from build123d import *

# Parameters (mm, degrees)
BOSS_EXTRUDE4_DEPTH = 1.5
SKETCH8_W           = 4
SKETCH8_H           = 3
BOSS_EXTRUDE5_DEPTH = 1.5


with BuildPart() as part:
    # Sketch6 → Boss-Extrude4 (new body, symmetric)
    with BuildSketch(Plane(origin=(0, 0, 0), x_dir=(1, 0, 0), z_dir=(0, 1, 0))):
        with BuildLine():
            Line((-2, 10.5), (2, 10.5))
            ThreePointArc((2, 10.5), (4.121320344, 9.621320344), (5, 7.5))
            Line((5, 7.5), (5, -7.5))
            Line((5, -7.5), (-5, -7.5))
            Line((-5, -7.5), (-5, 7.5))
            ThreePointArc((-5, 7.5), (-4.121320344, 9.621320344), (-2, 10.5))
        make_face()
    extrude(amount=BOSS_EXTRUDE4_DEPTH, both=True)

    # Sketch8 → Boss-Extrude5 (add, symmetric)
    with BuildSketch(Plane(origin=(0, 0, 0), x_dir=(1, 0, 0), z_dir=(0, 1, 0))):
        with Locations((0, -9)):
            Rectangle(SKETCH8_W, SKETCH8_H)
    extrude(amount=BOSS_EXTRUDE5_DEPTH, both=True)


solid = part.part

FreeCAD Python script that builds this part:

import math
import FreeCAD as App
import Part
import Sketcher

V = App.Vector


def add_polygon(sketch, points):
    """Adds a closed chain of lines whose ends are joined by coincident constraints."""
    first, n = sketch.GeometryCount, len(points)
    for a, b in zip(points, points[1:] + points[:1]):
        sketch.addGeometry(Part.LineSegment(App.Vector(*a, 0), App.Vector(*b, 0)), False)
    for i in range(n):
        sketch.addConstraint(Sketcher.Constraint("Coincident", first + i, 2, first + (i + 1) % n, 1))

doc = App.newDocument("Part")
params = doc.addObject("Spreadsheet::Sheet", "Params")
for row, (alias, value) in enumerate([
    ("sketch1_radius", "3 mm"),
    ("sketch1_width", "4 mm"),
    ("sketch1_height", "15 mm"),
    ("pad1_length", "3 mm"),
    ("sketch2_width", "4 mm"),
    ("sketch2_height", "3 mm"),
    ("pad2_length", "3 mm"),
], start=1):
    params.set(f"A{row}", alias)
    params.set(f"B{row}", "=" + value)
    params.setAlias(f"B{row}", alias)

body = doc.addObject("PartDesign::Body", "Body")

sketch1 = body.newObject("Sketcher::SketchObject", "Sketch")
sketch1.AttachmentSupport = (doc.getObject("XZ_Plane"), [""])
sketch1.MapMode = "FlatFace"
sketch1.addGeometry([
    Part.LineSegment(V(2, -10.5, 0), V(-2, -10.5, 0)),
    Part.ArcOfCircle(Part.Circle(V(-2, -7.5, 0), V(0, 0, 1), 3), math.radians(180), math.radians(270)),
    Part.LineSegment(V(-5, -7.5, 0), V(-5, 7.5, 0)),
    Part.LineSegment(V(-5, 7.5, 0), V(5, 7.5, 0)),
    Part.LineSegment(V(5, 7.5, 0), V(5, -7.5, 0)),
    Part.ArcOfCircle(Part.Circle(V(2, -7.5, 0), V(0, 0, 1), 3), math.radians(-90), math.radians(0)),
], False)
sketch1.addConstraint([
    Sketcher.Constraint("Tangent", 0, 2, 1, 2),
    Sketcher.Constraint("Tangent", 1, 1, 2, 1),
    Sketcher.Constraint("Coincident", 2, 2, 3, 1),
    Sketcher.Constraint("Coincident", 3, 2, 4, 1),
    Sketcher.Constraint("Tangent", 4, 2, 5, 2),
    Sketcher.Constraint("Tangent", 5, 1, 0, 1),
    Sketcher.Constraint("Horizontal", 0),
    Sketcher.Constraint("Vertical", 2),
    Sketcher.Constraint("Horizontal", 3),
    Sketcher.Constraint("Vertical", 4),
    Sketcher.Constraint("Equal", 1, 5),
    Sketcher.Constraint("Symmetric", 1, 1, 3, 2, -1, 1),
    Sketcher.Constraint("Radius", 1, 3.0),
    Sketcher.Constraint("DistanceX", 0, 2, 0, 1, 4.0),
    Sketcher.Constraint("DistanceY", 2, 1, 2, 2, 15.0),
])
sketch1.setExpression("Constraints[12]", "Params.sketch1_radius")
sketch1.setExpression("Constraints[13]", "Params.sketch1_width")
sketch1.setExpression("Constraints[14]", "Params.sketch1_height")
pad1 = body.newObject("PartDesign::Pad", "Pad")
pad1.Profile = sketch1
pad1.setExpression("Length", "Params.pad1_length")
pad1.Midplane = True

sketch2 = body.newObject("Sketcher::SketchObject", "Sketch001")
sketch2.AttachmentSupport = (doc.getObject("XZ_Plane"), [""])
sketch2.MapMode = "FlatFace"
add_polygon(sketch2, [(-2, 7.5), (-2, 10.5), (2, 10.5), (2, 7.5)])
sketch2.addConstraint([
    Sketcher.Constraint("Vertical", 0),
    Sketcher.Constraint("Horizontal", 1),
    Sketcher.Constraint("Vertical", 2),
    Sketcher.Constraint("Horizontal", 3),
    Sketcher.Constraint("DistanceX", 1, 1, 1, 2, 4.0),
    Sketcher.Constraint("DistanceY", 0, 1, 0, 2, 3.0),
    Sketcher.Constraint("DistanceX", 0, 2, -1, 1, 2.0),
    Sketcher.Constraint("DistanceY", -1, 1, 0, 2, 10.5),
])
sketch2.setExpression("Constraints[8]", "Params.sketch2_width")
sketch2.setExpression("Constraints[9]", "Params.sketch2_height")
pad2 = body.newObject("PartDesign::Pad", "Pad001")
pad2.Profile = sketch2
pad2.setExpression("Length", "Params.pad2_length")
pad2.Midplane = True

doc.recompute()
